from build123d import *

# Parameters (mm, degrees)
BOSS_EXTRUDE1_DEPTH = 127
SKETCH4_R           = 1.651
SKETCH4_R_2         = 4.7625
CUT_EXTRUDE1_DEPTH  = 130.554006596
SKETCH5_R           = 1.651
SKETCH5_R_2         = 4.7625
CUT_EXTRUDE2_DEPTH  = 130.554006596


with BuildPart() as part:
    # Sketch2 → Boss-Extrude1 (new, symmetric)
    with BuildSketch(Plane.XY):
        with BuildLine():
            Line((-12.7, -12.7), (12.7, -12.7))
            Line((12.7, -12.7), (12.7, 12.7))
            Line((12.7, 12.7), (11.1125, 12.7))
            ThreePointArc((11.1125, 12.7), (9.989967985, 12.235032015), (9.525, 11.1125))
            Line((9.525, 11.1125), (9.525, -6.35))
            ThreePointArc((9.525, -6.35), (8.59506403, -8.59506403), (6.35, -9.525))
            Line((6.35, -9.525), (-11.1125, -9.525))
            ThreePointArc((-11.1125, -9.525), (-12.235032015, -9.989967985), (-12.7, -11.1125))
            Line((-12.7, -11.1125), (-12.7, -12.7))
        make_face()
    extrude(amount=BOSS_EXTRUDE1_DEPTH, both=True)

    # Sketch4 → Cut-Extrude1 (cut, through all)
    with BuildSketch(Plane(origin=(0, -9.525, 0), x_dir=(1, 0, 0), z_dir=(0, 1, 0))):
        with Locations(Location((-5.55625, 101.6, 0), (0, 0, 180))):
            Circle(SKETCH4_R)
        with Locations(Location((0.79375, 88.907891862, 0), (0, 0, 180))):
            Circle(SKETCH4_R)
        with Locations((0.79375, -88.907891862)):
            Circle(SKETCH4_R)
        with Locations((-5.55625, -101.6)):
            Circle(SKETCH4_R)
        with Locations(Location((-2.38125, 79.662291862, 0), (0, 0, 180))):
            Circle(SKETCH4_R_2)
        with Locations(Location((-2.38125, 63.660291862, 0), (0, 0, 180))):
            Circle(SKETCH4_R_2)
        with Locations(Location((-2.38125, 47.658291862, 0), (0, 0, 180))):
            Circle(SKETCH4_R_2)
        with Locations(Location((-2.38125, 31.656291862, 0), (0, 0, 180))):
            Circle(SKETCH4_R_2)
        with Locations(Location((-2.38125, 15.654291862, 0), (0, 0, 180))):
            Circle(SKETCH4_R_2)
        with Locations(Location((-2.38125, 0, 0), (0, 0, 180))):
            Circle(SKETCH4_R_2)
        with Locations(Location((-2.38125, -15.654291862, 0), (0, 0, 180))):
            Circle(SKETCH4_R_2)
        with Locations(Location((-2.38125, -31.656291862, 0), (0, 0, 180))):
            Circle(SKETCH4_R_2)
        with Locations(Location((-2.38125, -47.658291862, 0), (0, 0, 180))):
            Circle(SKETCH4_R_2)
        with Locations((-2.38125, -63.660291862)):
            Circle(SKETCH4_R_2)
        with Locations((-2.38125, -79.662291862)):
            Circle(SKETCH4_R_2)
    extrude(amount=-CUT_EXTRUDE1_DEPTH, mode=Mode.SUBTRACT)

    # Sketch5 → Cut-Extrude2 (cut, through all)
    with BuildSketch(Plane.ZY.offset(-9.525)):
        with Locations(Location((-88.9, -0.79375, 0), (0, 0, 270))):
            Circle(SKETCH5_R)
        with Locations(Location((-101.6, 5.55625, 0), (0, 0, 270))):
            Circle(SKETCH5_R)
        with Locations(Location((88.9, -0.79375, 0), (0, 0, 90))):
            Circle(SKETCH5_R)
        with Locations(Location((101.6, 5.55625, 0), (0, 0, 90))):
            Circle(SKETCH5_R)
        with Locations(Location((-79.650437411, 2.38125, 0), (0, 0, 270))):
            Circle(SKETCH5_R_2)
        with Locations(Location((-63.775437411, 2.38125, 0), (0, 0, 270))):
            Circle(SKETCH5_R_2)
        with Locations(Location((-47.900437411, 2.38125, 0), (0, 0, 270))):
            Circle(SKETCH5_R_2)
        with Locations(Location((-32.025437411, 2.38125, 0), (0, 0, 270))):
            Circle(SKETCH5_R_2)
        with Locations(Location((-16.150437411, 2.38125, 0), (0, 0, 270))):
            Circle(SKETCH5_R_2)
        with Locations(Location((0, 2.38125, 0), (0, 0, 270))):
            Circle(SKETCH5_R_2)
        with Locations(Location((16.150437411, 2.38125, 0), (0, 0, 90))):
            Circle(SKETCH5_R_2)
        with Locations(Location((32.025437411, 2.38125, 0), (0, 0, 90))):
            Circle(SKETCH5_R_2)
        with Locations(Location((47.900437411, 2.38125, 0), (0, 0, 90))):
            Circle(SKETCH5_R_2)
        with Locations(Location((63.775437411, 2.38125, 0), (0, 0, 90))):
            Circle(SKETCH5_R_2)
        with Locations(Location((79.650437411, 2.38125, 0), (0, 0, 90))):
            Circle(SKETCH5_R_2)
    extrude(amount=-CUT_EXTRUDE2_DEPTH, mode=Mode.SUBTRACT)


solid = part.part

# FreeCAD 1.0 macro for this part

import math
import FreeCAD as App
import Part
import Sketcher
from FreeCAD import Vector
Q = App.Units.Quantity

doc = App.newDocument("Part")
params = doc.addObject("Spreadsheet::Sheet", "Params")
for row, (alias, value) in enumerate([
    ("sketch1_width", "1 in"),
    ("sketch1_radius", "0.0625 in"),
    ("sketch1_radius2", "0.125 in"),
    ("pad1_length", "10 in"),
    ("sketch2_diameter", "0.13 in"),
    ("sketch2_diameter2", "0.375 in"),
    ("sketch3_diameter", "0.13 in"),
    ("sketch3_diameter2", "0.375 in"),
], start=1):
    params.set(f"A{row}", alias)
    params.set(f"B{row}", "=" + value)
    params.setAlias(f"B{row}", alias)

body = doc.addObject("PartDesign::Body", "Body")

sketch1 = doc.addObject("Sketcher::SketchObject", "Sketch")
body.addObject(sketch1)
sketch1.AttachmentSupport = (doc.XY_Plane, [""])
sketch1.MapMode = "FlatFace"
sketch1.addGeometry(Part.LineSegment(Vector(-12.7, -12.7, 0), Vector(12.7, -12.7, 0)), False)
sketch1.addGeometry(Part.LineSegment(Vector(12.7, -12.7, 0), Vector(12.7, 12.7, 0)), False)
sketch1.addGeometry(Part.LineSegment(Vector(12.7, 12.7, 0), Vector(11.1125, 12.7, 0)), False)
sketch1.addGeometry(Part.ArcOfCircle(Part.Circle(Vector(11.1125, 11.1125, 0), Vector(0, 0, 1), 1.5875), math.radians(90), math.radians(180)), False)
sketch1.addGeometry(Part.LineSegment(Vector(9.525, 11.1125, 0), Vector(9.525, -6.35, 0)), False)
sketch1.addGeometry(Part.ArcOfCircle(Part.Circle(Vector(6.35, -6.35, 0), Vector(0, 0, 1), 3.175), math.radians(-90), math.radians(0)), False)
sketch1.addGeometry(Part.LineSegment(Vector(6.35, -9.525, 0), Vector(-11.1125, -9.525, 0)), False)
sketch1.addGeometry(Part.ArcOfCircle(Part.Circle(Vector(-11.1125, -11.1125, 0), Vector(0, 0, 1), 1.5875), math.radians(90), math.radians(180)), False)
sketch1.addGeometry(Part.LineSegment(Vector(-12.7, -11.1125, 0), Vector(-12.7, -12.7, 0)), False)
sketch1.addConstraint(Sketcher.Constraint("Coincident", 0, 2, 1, 1))
sketch1.addConstraint(Sketcher.Constraint("Coincident", 1, 2, 2, 1))
sketch1.addConstraint(Sketcher.Constraint("Tangent", 2, 2, 3, 1))
sketch1.addConstraint(Sketcher.Constraint("Tangent", 3, 2, 4, 1))
sketch1.addConstraint(Sketcher.Constraint("Tangent", 4, 2, 5, 2))
sketch1.addConstraint(Sketcher.Constraint("Tangent", 5, 1, 6, 1))
sketch1.addConstraint(Sketcher.Constraint("Tangent", 6, 2, 7, 1))
sketch1.addConstraint(Sketcher.Constraint("Tangent", 7, 2, 8, 1))
sketch1.addConstraint(Sketcher.Constraint("Coincident", 8, 2, 0, 1))
sketch1.addConstraint(Sketcher.Constraint("Horizontal", 0))
sketch1.addConstraint(Sketcher.Constraint("Vertical", 1))
sketch1.addConstraint(Sketcher.Constraint("Horizontal", 2))
sketch1.addConstraint(Sketcher.Constraint("Vertical", 4))
sketch1.addConstraint(Sketcher.Constraint("Horizontal", 6))
sketch1.addConstraint(Sketcher.Constraint("Vertical", 8))
sketch1.addConstraint(Sketcher.Constraint("Equal", 3, 7))
sketch1.addConstraint(Sketcher.Constraint("Symmetric", 3, 3, 7, 3, -1, 1))
sketch1.addConstraint(Sketcher.Constraint("Symmetric", 1, 2, 8, 2, -1, 1))
sketch1.addConstraint(Sketcher.Constraint("Equal", 0, 1))
sketch1.addConstraint(Sketcher.Constraint("DistanceX", 0, 1, 0, 2, Q("1 in")))
sketch1.addConstraint(Sketcher.Constraint("Radius", 3, Q("0.0625 in")))
sketch1.addConstraint(Sketcher.Constraint("Radius", 5, Q("0.125 in")))
sketch1.setExpression("Constraints[19]", "Params.sketch1_width")
sketch1.setExpression("Constraints[20]", "Params.sketch1_radius")
sketch1.setExpression("Constraints[21]", "Params.sketch1_radius2")
pad1 = doc.addObject("PartDesign::Pad", "Pad")
body.addObject(pad1)
pad1.Profile = sketch1
pad1.setExpression("Length", "Params.pad1_length")
pad1.Midplane = True

sketch2 = doc.addObject("Sketcher::SketchObject", "Sketch001")
body.addObject(sketch2)
sketch2.AttachmentSupport = (doc.XZ_Plane, [""])
sketch2.MapMode = "FlatFace"
sketch2.AttachmentOffset = App.Placement(Vector(0, 0, 0.375 * 25.4), App.Rotation())
sketch2.addGeometry(Part.Circle(Vector(-5.55625, -101.6, 0), Vector(0, 0, 1), 1.651), False)
sketch2.addGeometry(Part.Circle(Vector(0.79375, -88.907892, 0), Vector(0, 0, 1), 1.651), False)
sketch2.addGeometry(Part.Circle(Vector(0.79375, 88.907892, 0), Vector(0, 0, 1), 1.651), False)
sketch2.addGeometry(Part.Circle(Vector(-5.55625, 101.6, 0), Vector(0, 0, 1), 1.651), False)
sketch2.addGeometry(Part.Circle(Vector(-2.38125, -79.662292, 0), Vector(0, 0, 1), 4.7625), False)
sketch2.addGeometry(Part.Circle(Vector(-2.38125, -63.660292, 0), Vector(0, 0, 1), 4.7625), False)
sketch2.addGeometry(Part.Circle(Vector(-2.38125, -47.658292, 0), Vector(0, 0, 1), 4.7625), False)
sketch2.addGeometry(Part.Circle(Vector(-2.38125, -31.656292, 0), Vector(0, 0, 1), 4.7625), False)
sketch2.addGeometry(Part.Circle(Vector(-2.38125, -15.654292, 0), Vector(0, 0, 1), 4.7625), False)
sketch2.addGeometry(Part.Circle(Vector(-2.38125, 0, 0), Vector(0, 0, 1), 4.7625), False)
sketch2.addGeometry(Part.Circle(Vector(-2.38125, 15.654292, 0), Vector(0, 0, 1), 4.7625), False)
sketch2.addGeometry(Part.Circle(Vector(-2.38125, 31.656292, 0), Vector(0, 0, 1), 4.7625), False)
sketch2.addGeometry(Part.Circle(Vector(-2.38125, 47.658292, 0), Vector(0, 0, 1), 4.7625), False)
sketch2.addGeometry(Part.Circle(Vector(-2.38125, 63.660292, 0), Vector(0, 0, 1), 4.7625), False)
sketch2.addGeometry(Part.Circle(Vector(-2.38125, 79.662292, 0), Vector(0, 0, 1), 4.7625), False)
sketch2.addConstraint(Sketcher.Constraint("Equal", 0, 1))
sketch2.addConstraint(Sketcher.Constraint("Equal", 1, 2))
sketch2.addConstraint(Sketcher.Constraint("Equal", 2, 3))
sketch2.addConstraint(Sketcher.Constraint("Equal", 4, 5))
sketch2.addConstraint(Sketcher.Constraint("Equal", 5, 6))
sketch2.addConstraint(Sketcher.Constraint("Equal", 6, 7))
sketch2.addConstraint(Sketcher.Constraint("Equal", 7, 8))
sketch2.addConstraint(Sketcher.Constraint("Equal", 8, 9))
sketch2.addConstraint(Sketcher.Constraint("Equal", 9, 10))
sketch2.addConstraint(Sketcher.Constraint("Equal", 10, 11))
sketch2.addConstraint(Sketcher.Constraint("Equal", 11, 12))
sketch2.addConstraint(Sketcher.Constraint("Equal", 12, 13))
sketch2.addConstraint(Sketcher.Constraint("Equal", 13, 14))
sketch2.addConstraint(Sketcher.Constraint("Symmetric", 1, 3, 2, 3, -1))
sketch2.addConstraint(Sketcher.Constraint("Symmetric", 0, 3, 3, 3, -1))
sketch2.addConstraint(Sketcher.Constraint("Symmetric", 8, 3, 10, 3, -1))
sketch2.addConstraint(Sketcher.Constraint("Symmetric", 7, 3, 11, 3, -1))
sketch2.addConstraint(Sketcher.Constraint("Symmetric", 6, 3, 12, 3, -1))
sketch2.addConstraint(Sketcher.Constraint("Symmetric", 5, 3, 13, 3, -1))
sketch2.addConstraint(Sketcher.Constraint("Symmetric", 4, 3, 14, 3, -1))
sketch2.addConstraint(Sketcher.Constraint("PointOnObject", 9, 3, -1))
sketch2.addConstraint(Sketcher.Constraint("Vertical", 4, 3, 5, 3))
sketch2.addConstraint(Sketcher.Constraint("Vertical", 5, 3, 6, 3))
sketch2.addConstraint(Sketcher.Constraint("Vertical", 6, 3, 7, 3))
sketch2.addConstraint(Sketcher.Constraint("Vertical", 7, 3, 8, 3))
sketch2.addConstraint(Sketcher.Constraint("Vertical", 8, 3, 9, 3))
sketch2.addConstraint(Sketcher.Constraint("Diameter", 0, Q("0.13 in")))
sketch2.addConstraint(Sketcher.Constraint("Diameter", 4, Q("0.375 in")))
sketch2.addConstraint(Sketcher.Constraint("DistanceY", 0, 3, -1, 1, Q("4 in")))
sketch2.addConstraint(Sketcher.Constraint("DistanceX", 0, 3, 1, 3, Q("0.25 in")))
sketch2.addConstraint(Sketcher.Constraint("DistanceY", 4, 3, 5, 3, Q("0.63 in")))
sketch2.addConstraint(Sketcher.Constraint("DistanceY", 5, 3, 6, 3, Q("0.63 in")))
sketch2.addConstraint(Sketcher.Constraint("DistanceY", 6, 3, 7, 3, Q("0.63 in")))
sketch2.addConstraint(Sketcher.Constraint("DistanceY", 7, 3, 8, 3, Q("0.63 in")))
sketch2.addConstraint(Sketcher.Constraint("DistanceX", 0, 3, -1, 1, Q("0.21875 in")))
sketch2.addConstraint(Sketcher.Constraint("DistanceX", 4, 3, -1, 1, Q("0.09375 in")))
sketch2.addConstraint(Sketcher.Constraint("DistanceY", 1, 3, 4, 3, Q("0.364 in")))
sketch2.addConstraint(Sketcher.Constraint("DistanceY", 1, 3, -1, 1, Q("88.907892 mm")))
sketch2.setExpression("Constraints[26]", "Params.sketch2_diameter")
sketch2.setExpression("Constraints[27]", "Params.sketch2_diameter2")
pocket1 = doc.addObject("PartDesign::Pocket", "Pocket")
body.addObject(pocket1)
pocket1.Profile = sketch2
pocket1.Type = "ThroughAll"
pocket1.Reversed = True

sketch3 = doc.addObject("Sketcher::SketchObject", "Sketch002")
body.addObject(sketch3)
sketch3.AttachmentSupport = (doc.YZ_Plane, [""])
sketch3.MapMode = "FlatFace"
sketch3.AttachmentOffset = App.Placement(Vector(0, 0, 0.375 * 25.4), App.Rotation())
sketch3.addGeometry(Part.Circle(Vector(-0.79375, -88.9, 0), Vector(0, 0, 1), 1.651), False)
sketch3.addGeometry(Part.Circle(Vector(5.55625, -101.6, 0), Vector(0, 0, 1), 1.651), False)
sketch3.addGeometry(Part.Circle(Vector(-0.79375, 88.9, 0), Vector(0, 0, 1), 1.651), False)
sketch3.addGeometry(Part.Circle(Vector(5.55625, 101.6, 0), Vector(0, 0, 1), 1.651), False)
sketch3.addGeometry(Part.Circle(Vector(2.38125, -79.650437, 0), Vector(0, 0, 1), 4.7625), False)
sketch3.addGeometry(Part.Circle(Vector(2.38125, -63.775437, 0), Vector(0, 0, 1), 4.7625), False)
sketch3.addGeometry(Part.Circle(Vector(2.38125, -47.900437, 0), Vector(0, 0, 1), 4.7625), False)
sketch3.addGeometry(Part.Circle(Vector(2.38125, -32.025437, 0), Vector(0, 0, 1), 4.7625), False)
sketch3.addGeometry(Part.Circle(Vector(2.38125, -16.150437, 0), Vector(0, 0, 1), 4.7625), False)
sketch3.addGeometry(Part.Circle(Vector(2.38125, 0, 0), Vector(0, 0, 1), 4.7625), False)
sketch3.addGeometry(Part.Circle(Vector(2.38125, 16.150437, 0), Vector(0, 0, 1), 4.7625), False)
sketch3.addGeometry(Part.Circle(Vector(2.38125, 32.025437, 0), Vector(0, 0, 1), 4.7625), False)
sketch3.addGeometry(Part.Circle(Vector(2.38125, 47.900437, 0), Vector(0, 0, 1), 4.7625), False)
sketch3.addGeometry(Part.Circle(Vector(2.38125, 63.775437, 0), Vector(0, 0, 1), 4.7625), False)
sketch3.addGeometry(Part.Circle(Vector(2.38125, 79.650437, 0), Vector(0, 0, 1), 4.7625), False)
sketch3.addConstraint(Sketcher.Constraint("Equal", 0, 1))
sketch3.addConstraint(Sketcher.Constraint("Equal", 1, 2))
sketch3.addConstraint(Sketcher.Constraint("Equal", 2, 3))
sketch3.addConstraint(Sketcher.Constraint("Equal", 4, 5))
sketch3.addConstraint(Sketcher.Constraint("Equal", 5, 6))
sketch3.addConstraint(Sketcher.Constraint("Equal", 6, 7))
sketch3.addConstraint(Sketcher.Constraint("Equal", 7, 8))
sketch3.addConstraint(Sketcher.Constraint("Equal", 8, 9))
sketch3.addConstraint(Sketcher.Constraint("Equal", 9, 10))
sketch3.addConstraint(Sketcher.Constraint("Equal", 10, 11))
sketch3.addConstraint(Sketcher.Constraint("Equal", 11, 12))
sketch3.addConstraint(Sketcher.Constraint("Equal", 12, 13))
sketch3.addConstraint(Sketcher.Constraint("Equal", 13, 14))
sketch3.addConstraint(Sketcher.Constraint("Symmetric", 0, 3, 2, 3, -1))
sketch3.addConstraint(Sketcher.Constraint("Symmetric", 1, 3, 3, 3, -1))
sketch3.addConstraint(Sketcher.Constraint("Symmetric", 8, 3, 10, 3, -1))
sketch3.addConstraint(Sketcher.Constraint("Symmetric", 7, 3, 11, 3, -1))
sketch3.addConstraint(Sketcher.Constraint("Symmetric", 6, 3, 12, 3, -1))
sketch3.addConstraint(Sketcher.Constraint("Symmetric", 5, 3, 13, 3, -1))
sketch3.addConstraint(Sketcher.Constraint("Symmetric", 4, 3, 14, 3, -1))
sketch3.addConstraint(Sketcher.Constraint("PointOnObject", 9, 3, -1))
sketch3.addConstraint(Sketcher.Constraint("Vertical", 4, 3, 5, 3))
sketch3.addConstraint(Sketcher.Constraint("Vertical", 5, 3, 6, 3))
sketch3.addConstraint(Sketcher.Constraint("Vertical", 6, 3, 7, 3))
sketch3.addConstraint(Sketcher.Constraint("Vertical", 7, 3, 8, 3))
sketch3.addConstraint(Sketcher.Constraint("Vertical", 8, 3, 9, 3))
sketch3.addConstraint(Sketcher.Constraint("Diameter", 0, Q("0.13 in")))
sketch3.addConstraint(Sketcher.Constraint("Diameter", 4, Q("0.375 in")))
sketch3.addConstraint(Sketcher.Constraint("DistanceY", 1, 3, -1, 1, Q("4 in")))
sketch3.addConstraint(Sketcher.Constraint("DistanceY", 0, 3, 2, 3, Q("7 in")))
sketch3.addConstraint(Sketcher.Constraint("DistanceY", 4, 3, 8, 3, Q("2.5 in")))
sketch3.addConstraint(Sketcher.Constraint("DistanceX", 0, 3, 1, 3, Q("0.25 in")))
sketch3.addConstraint(Sketcher.Constraint("DistanceY", 4, 3, 6, 3, Q("1.25 in")))
sketch3.addConstraint(Sketcher.Constraint("DistanceY", 5, 3, 7, 3, Q("1.25 in")))
sketch3.addConstraint(Sketcher.Constraint("DistanceX", 0, 3, -1, 1, Q("0.03125 in")))
sketch3.addConstraint(Sketcher.Constraint("DistanceX", -1, 1, 4, 3, Q("0.09375 in")))
sketch3.addConstraint(Sketcher.Constraint("DistanceY", 4, 3, 5, 3, Q("0.625 in")))
sketch3.addConstraint(Sketcher.Constraint("DistanceY", 4, 3, -1, 1, Q("79.650437 mm")))
sketch3.setExpression("Constraints[26]", "Params.sketch3_diameter")
sketch3.setExpression("Constraints[27]", "Params.sketch3_diameter2")
pocket2 = doc.addObject("PartDesign::Pocket", "Pocket001")
body.addObject(pocket2)
pocket2.Profile = sketch3
pocket2.Type = "ThroughAll"
pocket2.Reversed = True

doc.recompute()
